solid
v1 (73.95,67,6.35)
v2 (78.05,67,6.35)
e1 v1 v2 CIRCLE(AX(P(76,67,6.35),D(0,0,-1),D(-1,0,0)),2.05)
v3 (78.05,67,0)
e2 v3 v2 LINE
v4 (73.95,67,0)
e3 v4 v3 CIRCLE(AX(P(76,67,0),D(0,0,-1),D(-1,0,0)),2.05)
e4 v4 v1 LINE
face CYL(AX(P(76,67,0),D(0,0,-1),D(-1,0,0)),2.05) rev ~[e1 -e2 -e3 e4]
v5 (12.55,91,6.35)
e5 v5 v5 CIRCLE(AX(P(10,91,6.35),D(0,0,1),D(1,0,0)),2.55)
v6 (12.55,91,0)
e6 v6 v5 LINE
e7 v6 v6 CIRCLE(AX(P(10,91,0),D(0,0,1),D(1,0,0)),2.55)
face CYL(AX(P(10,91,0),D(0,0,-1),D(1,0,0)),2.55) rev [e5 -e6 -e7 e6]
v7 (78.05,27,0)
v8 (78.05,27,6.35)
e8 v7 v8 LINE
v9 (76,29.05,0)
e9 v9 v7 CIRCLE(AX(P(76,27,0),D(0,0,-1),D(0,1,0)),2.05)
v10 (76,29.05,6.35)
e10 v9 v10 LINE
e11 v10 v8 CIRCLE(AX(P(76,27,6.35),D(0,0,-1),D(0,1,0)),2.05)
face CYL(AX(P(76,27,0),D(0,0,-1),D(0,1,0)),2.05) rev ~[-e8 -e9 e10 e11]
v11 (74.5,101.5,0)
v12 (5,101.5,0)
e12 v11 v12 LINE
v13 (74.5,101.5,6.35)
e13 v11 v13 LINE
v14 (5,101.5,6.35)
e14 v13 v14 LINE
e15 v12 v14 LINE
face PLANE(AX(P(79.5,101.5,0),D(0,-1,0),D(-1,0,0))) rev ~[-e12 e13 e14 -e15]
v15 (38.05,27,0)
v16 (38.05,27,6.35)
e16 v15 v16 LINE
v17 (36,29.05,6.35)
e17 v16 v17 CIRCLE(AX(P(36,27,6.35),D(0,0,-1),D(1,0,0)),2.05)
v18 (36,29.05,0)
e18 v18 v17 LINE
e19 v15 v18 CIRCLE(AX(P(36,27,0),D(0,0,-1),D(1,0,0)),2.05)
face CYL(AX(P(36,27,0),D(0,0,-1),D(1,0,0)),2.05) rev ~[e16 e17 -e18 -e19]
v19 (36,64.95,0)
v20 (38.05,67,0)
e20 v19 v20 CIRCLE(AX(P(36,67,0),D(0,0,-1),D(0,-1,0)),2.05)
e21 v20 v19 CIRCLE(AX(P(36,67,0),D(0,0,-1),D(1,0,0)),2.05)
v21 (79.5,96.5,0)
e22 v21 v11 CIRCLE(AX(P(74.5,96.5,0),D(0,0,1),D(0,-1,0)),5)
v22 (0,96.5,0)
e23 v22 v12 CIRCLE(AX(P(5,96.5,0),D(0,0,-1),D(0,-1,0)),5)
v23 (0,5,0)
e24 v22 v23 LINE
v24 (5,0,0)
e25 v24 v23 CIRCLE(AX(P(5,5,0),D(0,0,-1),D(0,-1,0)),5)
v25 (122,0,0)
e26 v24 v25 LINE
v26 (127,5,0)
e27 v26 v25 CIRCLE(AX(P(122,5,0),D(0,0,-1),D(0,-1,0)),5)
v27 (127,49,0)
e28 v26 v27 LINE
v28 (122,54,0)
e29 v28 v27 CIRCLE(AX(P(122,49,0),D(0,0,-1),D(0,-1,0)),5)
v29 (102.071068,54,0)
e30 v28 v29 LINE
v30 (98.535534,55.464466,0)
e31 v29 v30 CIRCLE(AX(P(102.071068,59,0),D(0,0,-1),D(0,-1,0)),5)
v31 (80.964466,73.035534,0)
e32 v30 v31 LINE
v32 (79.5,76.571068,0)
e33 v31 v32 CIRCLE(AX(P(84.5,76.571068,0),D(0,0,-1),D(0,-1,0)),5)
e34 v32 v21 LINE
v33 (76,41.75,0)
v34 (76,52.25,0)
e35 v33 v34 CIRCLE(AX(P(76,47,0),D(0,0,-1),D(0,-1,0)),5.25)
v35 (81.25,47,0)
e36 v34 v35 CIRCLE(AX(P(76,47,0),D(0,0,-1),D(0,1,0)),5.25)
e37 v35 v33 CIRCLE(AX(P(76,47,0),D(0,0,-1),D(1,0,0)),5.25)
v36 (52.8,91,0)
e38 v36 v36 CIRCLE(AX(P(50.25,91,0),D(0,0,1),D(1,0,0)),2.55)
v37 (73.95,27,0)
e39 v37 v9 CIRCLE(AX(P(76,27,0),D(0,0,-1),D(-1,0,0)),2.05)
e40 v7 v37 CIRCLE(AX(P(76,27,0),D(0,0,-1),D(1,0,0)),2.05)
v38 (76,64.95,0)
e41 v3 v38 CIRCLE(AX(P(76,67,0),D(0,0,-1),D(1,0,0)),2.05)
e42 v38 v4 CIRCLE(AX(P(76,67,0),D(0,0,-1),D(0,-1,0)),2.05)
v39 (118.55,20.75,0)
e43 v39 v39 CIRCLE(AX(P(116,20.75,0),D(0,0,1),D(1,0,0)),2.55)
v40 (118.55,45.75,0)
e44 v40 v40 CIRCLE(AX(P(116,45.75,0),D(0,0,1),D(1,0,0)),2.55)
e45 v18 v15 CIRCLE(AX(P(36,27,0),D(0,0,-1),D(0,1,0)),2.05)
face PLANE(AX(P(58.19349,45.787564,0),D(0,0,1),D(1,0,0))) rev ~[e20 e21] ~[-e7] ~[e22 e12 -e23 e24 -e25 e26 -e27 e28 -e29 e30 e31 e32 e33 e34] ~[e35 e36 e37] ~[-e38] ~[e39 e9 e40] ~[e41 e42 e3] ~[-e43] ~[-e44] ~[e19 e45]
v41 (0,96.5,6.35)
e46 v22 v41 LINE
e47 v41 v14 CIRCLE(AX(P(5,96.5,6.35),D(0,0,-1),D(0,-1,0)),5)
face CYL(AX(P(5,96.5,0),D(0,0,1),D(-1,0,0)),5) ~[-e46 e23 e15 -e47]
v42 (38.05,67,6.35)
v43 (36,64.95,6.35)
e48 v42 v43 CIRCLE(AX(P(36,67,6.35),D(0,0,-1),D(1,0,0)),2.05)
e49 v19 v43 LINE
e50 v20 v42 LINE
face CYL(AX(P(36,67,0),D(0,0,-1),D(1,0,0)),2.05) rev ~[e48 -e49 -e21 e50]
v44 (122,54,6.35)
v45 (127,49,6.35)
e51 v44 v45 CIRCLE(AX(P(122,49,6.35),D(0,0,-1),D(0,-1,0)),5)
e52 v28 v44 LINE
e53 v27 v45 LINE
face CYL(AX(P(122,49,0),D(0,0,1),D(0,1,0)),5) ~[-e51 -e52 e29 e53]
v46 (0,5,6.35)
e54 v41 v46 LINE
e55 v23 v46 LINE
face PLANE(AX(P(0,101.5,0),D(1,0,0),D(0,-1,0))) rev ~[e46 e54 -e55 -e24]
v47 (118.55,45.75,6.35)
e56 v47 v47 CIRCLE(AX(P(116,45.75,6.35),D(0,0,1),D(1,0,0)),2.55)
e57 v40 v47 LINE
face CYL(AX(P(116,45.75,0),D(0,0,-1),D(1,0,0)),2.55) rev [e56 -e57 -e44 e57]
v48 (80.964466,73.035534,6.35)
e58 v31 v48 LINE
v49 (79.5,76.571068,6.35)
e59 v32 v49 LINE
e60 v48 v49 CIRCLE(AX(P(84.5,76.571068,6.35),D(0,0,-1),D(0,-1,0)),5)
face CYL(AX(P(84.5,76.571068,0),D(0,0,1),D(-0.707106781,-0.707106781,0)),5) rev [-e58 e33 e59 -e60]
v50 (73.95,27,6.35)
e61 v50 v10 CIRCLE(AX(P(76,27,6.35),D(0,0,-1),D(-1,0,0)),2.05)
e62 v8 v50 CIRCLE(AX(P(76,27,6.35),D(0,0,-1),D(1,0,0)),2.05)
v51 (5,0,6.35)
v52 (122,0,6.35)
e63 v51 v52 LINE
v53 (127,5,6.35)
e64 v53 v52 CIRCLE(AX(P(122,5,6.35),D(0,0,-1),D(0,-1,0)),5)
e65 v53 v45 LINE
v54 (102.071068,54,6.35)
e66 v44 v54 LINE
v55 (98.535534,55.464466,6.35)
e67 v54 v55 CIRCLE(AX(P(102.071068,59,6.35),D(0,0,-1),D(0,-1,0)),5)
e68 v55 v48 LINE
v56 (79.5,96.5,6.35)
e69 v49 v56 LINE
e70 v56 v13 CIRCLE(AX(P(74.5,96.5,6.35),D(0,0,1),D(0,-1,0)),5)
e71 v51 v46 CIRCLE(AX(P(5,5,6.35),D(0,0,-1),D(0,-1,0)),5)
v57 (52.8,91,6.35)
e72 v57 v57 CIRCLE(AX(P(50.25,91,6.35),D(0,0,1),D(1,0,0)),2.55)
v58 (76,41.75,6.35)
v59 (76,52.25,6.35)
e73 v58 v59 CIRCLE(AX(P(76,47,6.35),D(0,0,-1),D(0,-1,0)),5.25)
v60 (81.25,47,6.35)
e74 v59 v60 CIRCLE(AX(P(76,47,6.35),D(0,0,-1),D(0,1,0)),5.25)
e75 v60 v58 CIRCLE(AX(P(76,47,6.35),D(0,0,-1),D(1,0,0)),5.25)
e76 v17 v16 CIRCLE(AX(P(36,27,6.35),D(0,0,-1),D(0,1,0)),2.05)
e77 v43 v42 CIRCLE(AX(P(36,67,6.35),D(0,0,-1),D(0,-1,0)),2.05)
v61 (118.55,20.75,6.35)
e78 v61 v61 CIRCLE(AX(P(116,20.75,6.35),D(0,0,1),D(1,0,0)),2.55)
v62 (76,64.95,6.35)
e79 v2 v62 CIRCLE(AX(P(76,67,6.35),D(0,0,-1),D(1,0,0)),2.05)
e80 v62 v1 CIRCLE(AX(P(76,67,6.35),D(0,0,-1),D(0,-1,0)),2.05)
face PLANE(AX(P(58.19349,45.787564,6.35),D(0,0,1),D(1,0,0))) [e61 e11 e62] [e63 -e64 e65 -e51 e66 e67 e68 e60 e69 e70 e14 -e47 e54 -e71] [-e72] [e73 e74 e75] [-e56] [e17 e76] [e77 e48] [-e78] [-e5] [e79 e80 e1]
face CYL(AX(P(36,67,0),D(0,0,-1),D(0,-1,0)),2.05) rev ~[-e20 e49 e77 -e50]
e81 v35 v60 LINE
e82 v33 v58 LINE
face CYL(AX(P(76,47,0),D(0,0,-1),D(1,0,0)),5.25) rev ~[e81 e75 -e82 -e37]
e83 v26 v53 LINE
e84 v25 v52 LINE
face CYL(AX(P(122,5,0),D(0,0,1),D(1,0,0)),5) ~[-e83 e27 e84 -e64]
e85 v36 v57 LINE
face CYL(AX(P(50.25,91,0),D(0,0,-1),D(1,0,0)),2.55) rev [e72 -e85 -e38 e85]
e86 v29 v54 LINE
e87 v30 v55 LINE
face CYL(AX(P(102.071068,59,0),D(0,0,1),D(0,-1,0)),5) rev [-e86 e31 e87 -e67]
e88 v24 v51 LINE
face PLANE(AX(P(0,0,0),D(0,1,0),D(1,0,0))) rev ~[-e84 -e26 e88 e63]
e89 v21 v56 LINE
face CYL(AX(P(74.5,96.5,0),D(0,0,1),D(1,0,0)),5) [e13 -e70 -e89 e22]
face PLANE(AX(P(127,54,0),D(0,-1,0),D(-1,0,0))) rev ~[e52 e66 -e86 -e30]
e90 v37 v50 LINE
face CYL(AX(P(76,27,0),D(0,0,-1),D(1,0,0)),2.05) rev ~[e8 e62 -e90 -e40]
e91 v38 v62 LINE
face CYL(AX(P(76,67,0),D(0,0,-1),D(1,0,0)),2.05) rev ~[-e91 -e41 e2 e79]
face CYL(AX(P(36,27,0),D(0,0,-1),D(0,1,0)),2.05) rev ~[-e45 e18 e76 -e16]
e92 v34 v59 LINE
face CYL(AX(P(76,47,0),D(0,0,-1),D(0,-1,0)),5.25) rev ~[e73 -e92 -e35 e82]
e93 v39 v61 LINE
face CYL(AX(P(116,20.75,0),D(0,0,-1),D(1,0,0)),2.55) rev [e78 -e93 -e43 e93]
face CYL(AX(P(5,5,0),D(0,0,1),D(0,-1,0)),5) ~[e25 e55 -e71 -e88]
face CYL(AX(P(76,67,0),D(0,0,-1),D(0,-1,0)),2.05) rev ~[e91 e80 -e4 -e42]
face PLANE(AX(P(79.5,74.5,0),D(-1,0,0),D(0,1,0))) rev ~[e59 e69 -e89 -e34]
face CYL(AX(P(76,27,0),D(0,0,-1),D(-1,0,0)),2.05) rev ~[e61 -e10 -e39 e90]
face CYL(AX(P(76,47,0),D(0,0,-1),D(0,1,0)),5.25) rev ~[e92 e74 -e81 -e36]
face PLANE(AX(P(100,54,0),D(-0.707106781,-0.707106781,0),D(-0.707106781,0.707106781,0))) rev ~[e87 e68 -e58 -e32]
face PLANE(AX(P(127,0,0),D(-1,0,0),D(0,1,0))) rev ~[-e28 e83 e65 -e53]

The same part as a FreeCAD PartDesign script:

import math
import FreeCAD as App
import Part
import Sketcher
Q = App.Units.Quantity


def edges_at(feature, points):
    """Names of the edges that pass closest to the given points."""
    edges = feature.Shape.Edges
    near = lambda p: min(range(len(edges)), key=lambda i: edges[i].distToShape(Part.Vertex(*p))[0])
    return sorted({f"Edge{near(p) + 1}" for p in points})

doc = App.newDocument("Part")
body = doc.addObject("PartDesign::Body", "Body")

sketch1 = body.newObject("Sketcher::SketchObject", "Sketch")
sketch1.AttachmentSupport = (doc.getObject("XY_Plane"), [""])
sketch1.MapMode = "FlatFace"
sketch1.addGeometry(Part.LineSegment(App.Vector(0, 101.5, 0), App.Vector(0, 0, 0)), False)
sketch1.addGeometry(Part.LineSegment(App.Vector(0, 0, 0), App.Vector(127, 0, 0)), False)
sketch1.addGeometry(Part.LineSegment(App.Vector(127, 0, 0), App.Vector(127, 54, 0)), False)
sketch1.addGeometry(Part.LineSegment(App.Vector(127, 54, 0), App.Vector(100, 54, 0)), False)
sketch1.addGeometry(Part.LineSegment(App.Vector(100, 54, 0), App.Vector(79.5, 74.5, 0)), False)
sketch1.addGeometry(Part.LineSegment(App.Vector(79.5, 74.5, 0), App.Vector(79.5, 101.5, 0)), False)
sketch1.addGeometry(Part.LineSegment(App.Vector(79.5, 101.5, 0), App.Vector(0, 101.5, 0)), False)
sketch1.addGeometry(Part.ArcOfCircle(Part.Circle(App.Vector(36, 27, 0), App.Vector(0, 0, 1), 2), math.radians(90), math.radians(360)), False)
sketch1.addGeometry(Part.ArcOfCircle(Part.Circle(App.Vector(36, 27, 0), App.Vector(0, 0, 1), 2), math.radians(0), math.radians(90)), False)
sketch1.addGeometry(Part.ArcOfCircle(Part.Circle(App.Vector(36, 67, 0), App.Vector(0, 0, 1), 2), math.radians(0), math.radians(270)), False)
sketch1.addGeometry(Part.ArcOfCircle(Part.Circle(App.Vector(36, 67, 0), App.Vector(0, 0, 1), 2), math.radians(-90), math.radians(0)), False)
sketch1.addGeometry(Part.ArcOfCircle(Part.Circle(App.Vector(76, 27, 0), App.Vector(0, 0, 1), 2), math.radians(180), math.radians(360)), False)
sketch1.addGeometry(Part.ArcOfCircle(Part.Circle(App.Vector(76, 27, 0), App.Vector(0, 0, 1), 2), math.radians(90), math.radians(180)), False)
sketch1.addGeometry(Part.ArcOfCircle(Part.Circle(App.Vector(76, 27, 0), App.Vector(0, 0, 1), 2), math.radians(0), math.radians(90)), False)
sketch1.addGeometry(Part.ArcOfCircle(Part.Circle(App.Vector(76, 67, 0), App.Vector(0, 0, 1), 2), math.radians(0), math.radians(180)), False)
sketch1.addGeometry(Part.ArcOfCircle(Part.Circle(App.Vector(76, 67, 0), App.Vector(0, 0, 1), 2), math.radians(-90), math.radians(0)), False)
sketch1.addGeometry(Part.ArcOfCircle(Part.Circle(App.Vector(76, 67, 0), App.Vector(0, 0, 1), 2), math.radians(180), math.radians(270)), False)
sketch1.addGeometry(Part.ArcOfCircle(Part.Circle(App.Vector(76, 47, 0), App.Vector(0, 0, 1), 5.2), math.radians(-90), math.radians(0)), False)
sketch1.addGeometry(Part.ArcOfCircle(Part.Circle(App.Vector(76, 47, 0), App.Vector(0, 0, 1), 5.2), math.radians(90), math.radians(270)), False)
sketch1.addGeometry(Part.ArcOfCircle(Part.Circle(App.Vector(76, 47, 0), App.Vector(0, 0, 1), 5.2), math.radians(0), math.radians(90)), False)
sketch1.addGeometry(Part.Circle(App.Vector(116, 20.8, 0), App.Vector(0, 0, 1), 2.5), False)
sketch1.addGeometry(Part.Circle(App.Vector(116, 45.8, 0), App.Vector(0, 0, 1), 2.5), False)
sketch1.addGeometry(Part.Circle(App.Vector(10, 91, 0), App.Vector(0, 0, 1), 2.5), False)
sketch1.addGeometry(Part.Circle(App.Vector(50.2, 91, 0), App.Vector(0, 0, 1), 2.5), False)
sketch1.addConstraint(Sketcher.Constraint("Coincident", 0, 2, 1, 1))
sketch1.addConstraint(Sketcher.Constraint("Coincident", 1, 2, 2, 1))
sketch1.addConstraint(Sketcher.Constraint("Coincident", 2, 2, 3, 1))
sketch1.addConstraint(Sketcher.Constraint("Coincident", 3, 2, 4, 1))
sketch1.addConstraint(Sketcher.Constraint("Coincident", 4, 2, 5, 1))
sketch1.addConstraint(Sketcher.Constraint("Coincident", 5, 2, 6, 1))
sketch1.addConstraint(Sketcher.Constraint("Coincident", 6, 2, 0, 1))
sketch1.addConstraint(Sketcher.Constraint("Tangent", 7, 1, 8, 2))
sketch1.addConstraint(Sketcher.Constraint("Coincident", 8, 1, 7, 2))
sketch1.addConstraint(Sketcher.Constraint("Tangent", 9, 1, 10, 2))
sketch1.addConstraint(Sketcher.Constraint("Coincident", 10, 1, 9, 2))
sketch1.addConstraint(Sketcher.Constraint("Tangent", 11, 1, 12, 2))
sketch1.addConstraint(Sketcher.Constraint("Tangent", 12, 1, 13, 2))
sketch1.addConstraint(Sketcher.Constraint("Tangent", 13, 1, 11, 2))
sketch1.addConstraint(Sketcher.Constraint("Tangent", 14, 1, 15, 2))
sketch1.addConstraint(Sketcher.Constraint("Tangent", 15, 1, 16, 2))
sketch1.addConstraint(Sketcher.Constraint("Tangent", 16, 1, 14, 2))
sketch1.addConstraint(Sketcher.Constraint("Tangent", 17, 1, 18, 2))
sketch1.addConstraint(Sketcher.Constraint("Tangent", 18, 1, 19, 2))
sketch1.addConstraint(Sketcher.Constraint("Tangent", 19, 1, 17, 2))
sketch1.addConstraint(Sketcher.Constraint("Vertical", 0))
sketch1.addConstraint(Sketcher.Constraint("Horizontal", 1))
sketch1.addConstraint(Sketcher.Constraint("Vertical", 2))
sketch1.addConstraint(Sketcher.Constraint("Horizontal", 3))
sketch1.addConstraint(Sketcher.Constraint("Vertical", 5))
sketch1.addConstraint(Sketcher.Constraint("Horizontal", 6))
sketch1.addConstraint(Sketcher.Constraint("Coincident", 0, 2, -1, 1))
sketch1.addConstraint(Sketcher.Constraint("Equal", 8, 9))
sketch1.addConstraint(Sketcher.Constraint("Equal", 10, 11))
sketch1.addConstraint(Sketcher.Constraint("Equal", 13, 14))
sketch1.addConstraint(Sketcher.Constraint("Equal", 20, 21))
sketch1.addConstraint(Sketcher.Constraint("Equal", 21, 22))
sketch1.addConstraint(Sketcher.Constraint("Equal", 22, 23))
sketch1.addConstraint(Sketcher.Constraint("Horizontal", 8, 3, 11, 3))
sketch1.addConstraint(Sketcher.Constraint("Horizontal", 10, 3, 14, 3))
sketch1.addConstraint(Sketcher.Constraint("Horizontal", 22, 3, 23, 3))
sketch1.addConstraint(Sketcher.Constraint("Horizontal", 13, 3, 8, 1))
sketch1.addConstraint(Sketcher.Constraint("Horizontal", 16, 3, 9, 1))
sketch1.addConstraint(Sketcher.Constraint("Horizontal", 8, 1, 11, 1))
sketch1.addConstraint(Sketcher.Constraint("Horizontal", 11, 1, 13, 1))
sketch1.addConstraint(Sketcher.Constraint("Horizontal", 9, 1, 14, 1))
sketch1.addConstraint(Sketcher.Constraint("Horizontal", 14, 1, 16, 1))
sketch1.addConstraint(Sketcher.Constraint("Horizontal", 18, 3, 19, 1))
sketch1.addConstraint(Sketcher.Constraint("Vertical", 8, 3, 9, 3))
sketch1.addConstraint(Sketcher.Constraint("Vertical", 13, 3, 14, 3))
sketch1.addConstraint(Sketcher.Constraint("Vertical", 16, 3, 17, 3))
sketch1.addConstraint(Sketcher.Constraint("Vertical", 20, 3, 21, 3))
sketch1.addConstraint(Sketcher.Constraint("Vertical", 10, 3, 7, 1))
sketch1.addConstraint(Sketcher.Constraint("Vertical", 7, 1, 10, 1))
sketch1.addConstraint(Sketcher.Constraint("Vertical", 19, 3, 12, 1))
sketch1.addConstraint(Sketcher.Constraint("Vertical", 12, 1, 15, 1))
sketch1.addConstraint(Sketcher.Constraint("Vertical", 15, 1, 17, 1))
sketch1.addConstraint(Sketcher.Constraint("Vertical", 17, 1, 18, 1))
sketch1.addConstraint(Sketcher.Constraint("Equal", 3, 5))
sketch1.addConstraint(Sketcher.Constraint("Diameter", 20, Q("5.1 mm")))
sketch1.addConstraint(Sketcher.Constraint("DistanceX", 1, 1, 1, 2, Q("127 mm")))
sketch1.addConstraint(Sketcher.Constraint("DistanceX", 3, 2, 3, 1, Q("27 mm")))
sketch1.addConstraint(Sketcher.Constraint("DistanceY", 2, 1, 2, 2, Q("54 mm")))
sketch1.addConstraint(Sketcher.Constraint("Angle", 4, Q("135 deg")))
sketch1.addConstraint(Sketcher.Constraint("Radius", 7, Q("2.05 mm")))
sketch1.addConstraint(Sketcher.Constraint("Radius", 17, Q("5.25 mm")))
sketch1.addConstraint(Sketcher.Constraint("DistanceX", 6, 2, 6, 1, Q("79.5 mm")))
sketch1.addConstraint(Sketcher.Constraint("DistanceX", -1, 1, 7, 3, Q("36 mm")))
sketch1.addConstraint(Sketcher.Constraint("DistanceY", -1, 1, 7, 3, Q("27 mm")))
sketch1.addConstraint(Sketcher.Constraint("DistanceY", -1, 1, 9, 3, Q("67 mm")))
sketch1.addConstraint(Sketcher.Constraint("DistanceX", -1, 1, 11, 3, Q("76 mm")))
sketch1.addConstraint(Sketcher.Constraint("DistanceY", -1, 1, 17, 3, Q("47 mm")))
sketch1.addConstraint(Sketcher.Constraint("DistanceX", -1, 1, 20, 3, Q("116 mm")))
sketch1.addConstraint(Sketcher.Constraint("DistanceX", -1, 1, 22, 3, Q("10 mm")))
sketch1.addConstraint(Sketcher.Constraint("DistanceY", -1, 1, 22, 3, Q("91 mm")))
sketch1.addConstraint(Sketcher.Constraint("DistanceY", 20, 3, 21, 3, Q("25 mm")))
sketch1.addConstraint(Sketcher.Constraint("DistanceX", 9, 1, 23, 3, Q("12.2 mm")))
sketch1.addConstraint(Sketcher.Constraint("DistanceY", -1, 1, 20, 3, Q("20.75 mm")))
pad1 = body.newObject("PartDesign::Pad", "Pad")
pad1.Profile = sketch1
pad1.Length = 6.35
doc.recompute()

fillet = body.newObject("PartDesign::Fillet", "Fillet")
fillet.Base = (pad1, edges_at(pad1, [(79.5, 74.5, 3.175), (100, 54, 3.175)]))
fillet.Radius = 5
doc.recompute()

fillet2 = body.newObject("PartDesign::Fillet", "Fillet001")
fillet2.Base = (fillet, edges_at(fillet, [
    (0, 101.5, 3.175),
    (79.5, 101.5, 3.175),
    (127, 54, 3.175),
    (127, 0, 3.175),
    (0, 0, 3.175),
]))
fillet2.Radius = 5

doc.recompute()
